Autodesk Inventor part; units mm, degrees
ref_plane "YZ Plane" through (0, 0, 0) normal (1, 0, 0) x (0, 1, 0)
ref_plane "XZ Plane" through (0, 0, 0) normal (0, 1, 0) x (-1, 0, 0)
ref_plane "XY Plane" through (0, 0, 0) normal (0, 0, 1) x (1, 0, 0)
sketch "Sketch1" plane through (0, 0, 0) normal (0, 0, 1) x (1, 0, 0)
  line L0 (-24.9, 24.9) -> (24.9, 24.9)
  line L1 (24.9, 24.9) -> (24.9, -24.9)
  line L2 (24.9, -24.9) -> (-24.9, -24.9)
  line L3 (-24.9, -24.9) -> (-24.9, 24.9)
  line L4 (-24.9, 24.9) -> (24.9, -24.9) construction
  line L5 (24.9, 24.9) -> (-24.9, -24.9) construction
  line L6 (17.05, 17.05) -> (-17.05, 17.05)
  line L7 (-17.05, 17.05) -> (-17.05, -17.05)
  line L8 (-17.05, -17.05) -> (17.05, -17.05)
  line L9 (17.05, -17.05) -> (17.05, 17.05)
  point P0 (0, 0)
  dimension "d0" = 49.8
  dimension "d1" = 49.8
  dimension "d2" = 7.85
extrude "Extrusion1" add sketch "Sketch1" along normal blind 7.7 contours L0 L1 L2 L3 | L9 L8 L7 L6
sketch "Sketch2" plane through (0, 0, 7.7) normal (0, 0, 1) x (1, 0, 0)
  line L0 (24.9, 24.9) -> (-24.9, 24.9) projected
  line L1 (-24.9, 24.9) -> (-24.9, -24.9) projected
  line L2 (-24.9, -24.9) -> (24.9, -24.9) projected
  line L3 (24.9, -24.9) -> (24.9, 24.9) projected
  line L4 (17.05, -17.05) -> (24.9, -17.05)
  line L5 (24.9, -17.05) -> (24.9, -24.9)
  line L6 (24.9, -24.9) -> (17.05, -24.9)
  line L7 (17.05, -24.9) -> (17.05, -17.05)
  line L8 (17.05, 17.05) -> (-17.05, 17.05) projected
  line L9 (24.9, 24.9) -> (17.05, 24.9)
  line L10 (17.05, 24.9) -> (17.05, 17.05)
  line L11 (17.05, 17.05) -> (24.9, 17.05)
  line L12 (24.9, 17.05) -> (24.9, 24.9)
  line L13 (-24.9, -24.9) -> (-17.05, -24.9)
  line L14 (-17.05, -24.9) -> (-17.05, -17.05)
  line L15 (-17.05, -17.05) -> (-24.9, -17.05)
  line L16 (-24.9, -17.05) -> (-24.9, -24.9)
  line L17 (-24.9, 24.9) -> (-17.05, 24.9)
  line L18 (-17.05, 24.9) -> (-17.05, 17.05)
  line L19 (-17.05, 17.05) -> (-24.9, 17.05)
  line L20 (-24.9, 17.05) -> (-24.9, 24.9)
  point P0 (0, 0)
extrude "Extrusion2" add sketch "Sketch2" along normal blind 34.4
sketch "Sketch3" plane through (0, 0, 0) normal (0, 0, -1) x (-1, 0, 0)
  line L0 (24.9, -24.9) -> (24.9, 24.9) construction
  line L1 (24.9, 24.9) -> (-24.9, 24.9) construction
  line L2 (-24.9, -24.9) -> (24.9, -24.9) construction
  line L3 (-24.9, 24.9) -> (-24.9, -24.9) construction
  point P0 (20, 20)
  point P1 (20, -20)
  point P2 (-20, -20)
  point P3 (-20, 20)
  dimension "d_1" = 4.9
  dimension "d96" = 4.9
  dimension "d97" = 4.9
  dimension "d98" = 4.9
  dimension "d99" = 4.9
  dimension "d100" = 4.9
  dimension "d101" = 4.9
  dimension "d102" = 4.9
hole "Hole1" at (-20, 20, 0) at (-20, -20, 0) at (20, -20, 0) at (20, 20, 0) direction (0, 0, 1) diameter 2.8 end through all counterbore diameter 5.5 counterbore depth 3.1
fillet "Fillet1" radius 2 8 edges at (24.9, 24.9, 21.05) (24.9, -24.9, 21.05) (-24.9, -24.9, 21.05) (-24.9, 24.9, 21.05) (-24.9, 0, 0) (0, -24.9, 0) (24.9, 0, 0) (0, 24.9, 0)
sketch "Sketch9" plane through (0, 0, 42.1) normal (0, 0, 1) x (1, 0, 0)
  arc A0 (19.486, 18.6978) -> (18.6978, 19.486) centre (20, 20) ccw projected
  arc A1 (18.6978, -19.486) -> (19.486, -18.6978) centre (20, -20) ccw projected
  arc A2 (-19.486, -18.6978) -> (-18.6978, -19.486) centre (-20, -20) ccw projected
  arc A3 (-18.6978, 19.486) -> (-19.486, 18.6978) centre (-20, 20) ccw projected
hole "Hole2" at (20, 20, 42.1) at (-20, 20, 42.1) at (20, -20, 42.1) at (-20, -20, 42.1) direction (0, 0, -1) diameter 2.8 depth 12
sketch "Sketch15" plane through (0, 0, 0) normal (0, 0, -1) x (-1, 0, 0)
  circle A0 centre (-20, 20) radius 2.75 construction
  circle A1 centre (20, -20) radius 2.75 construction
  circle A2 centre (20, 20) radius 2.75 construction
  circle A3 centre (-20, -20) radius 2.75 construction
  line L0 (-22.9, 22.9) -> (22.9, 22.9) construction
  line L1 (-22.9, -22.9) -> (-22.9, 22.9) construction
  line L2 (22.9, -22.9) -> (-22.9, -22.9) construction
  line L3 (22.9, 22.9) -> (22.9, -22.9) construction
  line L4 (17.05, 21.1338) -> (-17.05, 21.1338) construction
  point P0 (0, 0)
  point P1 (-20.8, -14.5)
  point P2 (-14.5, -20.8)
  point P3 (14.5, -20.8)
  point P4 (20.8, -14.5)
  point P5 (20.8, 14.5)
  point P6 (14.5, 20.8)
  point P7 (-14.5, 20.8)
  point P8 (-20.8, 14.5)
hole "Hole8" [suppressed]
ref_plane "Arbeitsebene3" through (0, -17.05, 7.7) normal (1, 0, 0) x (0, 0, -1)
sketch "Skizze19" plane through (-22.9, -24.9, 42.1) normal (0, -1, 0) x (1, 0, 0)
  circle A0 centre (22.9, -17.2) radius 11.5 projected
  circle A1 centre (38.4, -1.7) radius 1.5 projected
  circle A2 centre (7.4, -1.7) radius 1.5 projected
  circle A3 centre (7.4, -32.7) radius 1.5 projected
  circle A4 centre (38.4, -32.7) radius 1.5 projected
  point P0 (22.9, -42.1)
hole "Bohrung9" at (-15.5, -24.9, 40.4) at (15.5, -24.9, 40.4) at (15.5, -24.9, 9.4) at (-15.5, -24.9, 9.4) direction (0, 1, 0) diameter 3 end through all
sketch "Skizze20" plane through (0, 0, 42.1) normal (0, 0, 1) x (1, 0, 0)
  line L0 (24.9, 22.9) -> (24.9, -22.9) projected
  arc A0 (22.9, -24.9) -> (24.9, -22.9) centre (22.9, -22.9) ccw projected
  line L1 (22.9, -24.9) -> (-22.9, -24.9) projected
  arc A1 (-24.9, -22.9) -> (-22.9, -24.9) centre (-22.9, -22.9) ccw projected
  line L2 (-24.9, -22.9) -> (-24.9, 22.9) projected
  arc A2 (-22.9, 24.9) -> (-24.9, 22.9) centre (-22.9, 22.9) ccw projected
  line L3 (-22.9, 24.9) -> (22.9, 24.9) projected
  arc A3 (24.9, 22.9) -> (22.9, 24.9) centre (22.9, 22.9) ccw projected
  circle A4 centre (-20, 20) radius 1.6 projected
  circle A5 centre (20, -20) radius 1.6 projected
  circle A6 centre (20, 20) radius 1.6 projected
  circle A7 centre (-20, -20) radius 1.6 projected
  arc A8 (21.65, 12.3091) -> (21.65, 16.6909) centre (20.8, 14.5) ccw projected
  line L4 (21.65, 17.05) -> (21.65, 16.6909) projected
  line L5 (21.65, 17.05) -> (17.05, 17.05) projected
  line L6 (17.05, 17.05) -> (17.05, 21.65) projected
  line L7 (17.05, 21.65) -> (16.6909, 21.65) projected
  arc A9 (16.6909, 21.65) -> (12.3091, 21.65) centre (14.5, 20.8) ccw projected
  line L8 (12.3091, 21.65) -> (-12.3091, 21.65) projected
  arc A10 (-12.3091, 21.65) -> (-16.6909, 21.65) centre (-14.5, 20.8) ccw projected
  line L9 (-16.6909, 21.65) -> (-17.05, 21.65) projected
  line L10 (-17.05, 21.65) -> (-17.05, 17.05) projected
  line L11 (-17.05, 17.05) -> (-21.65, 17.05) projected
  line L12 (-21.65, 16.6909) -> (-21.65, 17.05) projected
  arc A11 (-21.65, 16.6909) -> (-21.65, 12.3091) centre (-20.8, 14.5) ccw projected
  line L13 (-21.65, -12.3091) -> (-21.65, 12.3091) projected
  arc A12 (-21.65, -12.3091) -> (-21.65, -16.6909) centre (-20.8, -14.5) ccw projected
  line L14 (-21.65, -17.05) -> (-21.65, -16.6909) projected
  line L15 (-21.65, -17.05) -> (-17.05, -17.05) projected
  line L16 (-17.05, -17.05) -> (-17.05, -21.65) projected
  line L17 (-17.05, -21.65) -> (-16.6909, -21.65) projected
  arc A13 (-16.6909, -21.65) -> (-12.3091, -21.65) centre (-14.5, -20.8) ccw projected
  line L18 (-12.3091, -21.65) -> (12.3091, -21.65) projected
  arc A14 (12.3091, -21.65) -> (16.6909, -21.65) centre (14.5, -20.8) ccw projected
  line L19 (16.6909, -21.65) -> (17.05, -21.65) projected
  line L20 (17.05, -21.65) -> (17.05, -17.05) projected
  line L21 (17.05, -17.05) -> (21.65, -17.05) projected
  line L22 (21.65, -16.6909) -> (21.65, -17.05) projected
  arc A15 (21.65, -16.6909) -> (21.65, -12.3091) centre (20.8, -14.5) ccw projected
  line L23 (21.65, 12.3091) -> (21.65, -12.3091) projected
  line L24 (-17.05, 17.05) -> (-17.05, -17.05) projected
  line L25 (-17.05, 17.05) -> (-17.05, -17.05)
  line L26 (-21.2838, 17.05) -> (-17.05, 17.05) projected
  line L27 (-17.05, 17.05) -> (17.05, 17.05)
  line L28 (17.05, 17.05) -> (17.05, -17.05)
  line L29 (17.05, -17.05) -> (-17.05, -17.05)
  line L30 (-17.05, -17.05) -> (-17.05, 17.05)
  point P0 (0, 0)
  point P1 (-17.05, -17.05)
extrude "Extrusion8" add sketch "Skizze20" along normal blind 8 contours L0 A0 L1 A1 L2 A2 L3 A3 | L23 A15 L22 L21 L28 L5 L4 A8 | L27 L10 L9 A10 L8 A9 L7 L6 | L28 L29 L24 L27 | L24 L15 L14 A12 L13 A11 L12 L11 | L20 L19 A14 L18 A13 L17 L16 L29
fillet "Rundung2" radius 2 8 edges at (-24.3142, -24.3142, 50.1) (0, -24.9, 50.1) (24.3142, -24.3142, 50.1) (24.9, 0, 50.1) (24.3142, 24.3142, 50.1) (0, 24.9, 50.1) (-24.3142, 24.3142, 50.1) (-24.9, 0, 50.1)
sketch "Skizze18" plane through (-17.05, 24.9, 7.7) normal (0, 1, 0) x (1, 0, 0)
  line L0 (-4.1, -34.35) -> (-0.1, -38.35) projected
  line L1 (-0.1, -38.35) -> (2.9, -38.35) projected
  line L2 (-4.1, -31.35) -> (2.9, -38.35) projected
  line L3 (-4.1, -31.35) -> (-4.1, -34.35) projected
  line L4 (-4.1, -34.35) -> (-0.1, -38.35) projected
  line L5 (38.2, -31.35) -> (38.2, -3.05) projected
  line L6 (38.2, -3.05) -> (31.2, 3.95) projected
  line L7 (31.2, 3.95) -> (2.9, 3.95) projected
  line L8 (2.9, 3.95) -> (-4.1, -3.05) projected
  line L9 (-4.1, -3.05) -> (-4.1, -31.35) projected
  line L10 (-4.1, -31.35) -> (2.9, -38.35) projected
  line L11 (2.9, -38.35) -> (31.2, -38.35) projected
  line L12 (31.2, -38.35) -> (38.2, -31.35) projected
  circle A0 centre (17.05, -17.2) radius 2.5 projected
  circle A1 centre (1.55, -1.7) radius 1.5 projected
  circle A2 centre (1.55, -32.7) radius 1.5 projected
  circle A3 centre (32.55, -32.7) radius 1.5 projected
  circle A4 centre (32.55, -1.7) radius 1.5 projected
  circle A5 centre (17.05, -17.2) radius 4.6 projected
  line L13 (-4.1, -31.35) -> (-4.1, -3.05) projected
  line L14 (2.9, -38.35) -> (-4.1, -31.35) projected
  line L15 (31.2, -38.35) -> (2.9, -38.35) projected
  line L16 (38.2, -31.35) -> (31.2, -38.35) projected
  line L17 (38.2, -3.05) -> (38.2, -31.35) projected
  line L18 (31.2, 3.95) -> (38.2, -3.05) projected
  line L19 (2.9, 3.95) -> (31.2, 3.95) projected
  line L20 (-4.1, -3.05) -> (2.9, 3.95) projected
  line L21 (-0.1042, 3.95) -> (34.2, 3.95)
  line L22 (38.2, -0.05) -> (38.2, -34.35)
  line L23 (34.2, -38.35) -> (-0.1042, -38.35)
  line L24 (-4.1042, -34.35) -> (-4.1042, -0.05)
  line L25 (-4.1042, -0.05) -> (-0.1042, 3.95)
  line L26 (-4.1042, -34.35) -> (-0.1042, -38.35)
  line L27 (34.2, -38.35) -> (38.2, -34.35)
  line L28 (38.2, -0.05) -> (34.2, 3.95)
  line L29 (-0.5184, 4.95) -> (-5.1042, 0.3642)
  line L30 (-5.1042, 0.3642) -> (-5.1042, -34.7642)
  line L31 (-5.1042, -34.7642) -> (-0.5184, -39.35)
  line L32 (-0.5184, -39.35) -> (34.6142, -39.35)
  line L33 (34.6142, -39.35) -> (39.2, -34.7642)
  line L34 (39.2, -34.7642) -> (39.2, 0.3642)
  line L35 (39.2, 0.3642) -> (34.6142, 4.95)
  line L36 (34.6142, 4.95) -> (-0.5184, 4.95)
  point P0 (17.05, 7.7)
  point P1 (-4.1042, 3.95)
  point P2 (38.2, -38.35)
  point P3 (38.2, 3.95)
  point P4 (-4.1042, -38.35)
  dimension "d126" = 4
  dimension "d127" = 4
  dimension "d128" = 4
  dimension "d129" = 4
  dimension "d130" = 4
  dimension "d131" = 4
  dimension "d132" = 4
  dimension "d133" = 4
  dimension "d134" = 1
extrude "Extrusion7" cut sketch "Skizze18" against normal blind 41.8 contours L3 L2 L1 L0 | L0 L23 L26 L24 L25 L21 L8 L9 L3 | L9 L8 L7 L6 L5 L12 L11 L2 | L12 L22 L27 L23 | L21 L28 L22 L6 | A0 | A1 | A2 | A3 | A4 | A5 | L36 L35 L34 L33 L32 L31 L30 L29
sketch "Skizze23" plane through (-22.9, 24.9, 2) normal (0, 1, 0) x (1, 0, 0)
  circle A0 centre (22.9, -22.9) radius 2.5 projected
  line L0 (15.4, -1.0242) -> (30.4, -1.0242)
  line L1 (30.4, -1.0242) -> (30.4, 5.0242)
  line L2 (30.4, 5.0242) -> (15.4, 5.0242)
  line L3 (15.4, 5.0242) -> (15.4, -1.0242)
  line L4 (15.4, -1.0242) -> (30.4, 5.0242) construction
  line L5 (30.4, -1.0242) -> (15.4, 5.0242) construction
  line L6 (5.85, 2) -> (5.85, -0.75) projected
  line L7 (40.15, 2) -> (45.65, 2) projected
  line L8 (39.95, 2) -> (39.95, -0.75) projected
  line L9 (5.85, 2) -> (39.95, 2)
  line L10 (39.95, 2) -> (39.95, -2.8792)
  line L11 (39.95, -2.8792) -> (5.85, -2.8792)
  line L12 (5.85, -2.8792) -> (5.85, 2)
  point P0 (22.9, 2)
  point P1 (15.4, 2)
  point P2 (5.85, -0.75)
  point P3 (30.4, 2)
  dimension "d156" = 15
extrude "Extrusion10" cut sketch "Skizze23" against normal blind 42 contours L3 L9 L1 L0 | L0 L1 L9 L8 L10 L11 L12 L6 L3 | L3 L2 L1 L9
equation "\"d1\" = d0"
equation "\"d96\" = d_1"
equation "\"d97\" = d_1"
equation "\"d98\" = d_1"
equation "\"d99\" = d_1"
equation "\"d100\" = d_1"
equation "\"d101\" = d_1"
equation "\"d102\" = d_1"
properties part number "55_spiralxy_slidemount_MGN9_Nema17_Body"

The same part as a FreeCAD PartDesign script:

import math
import FreeCAD as App
import Part
import Sketcher
from FreeCAD import Vector
Q = App.Units.Quantity


def edges_at(feature, points):
    """Names of the edges that pass closest to the given points."""
    edges = feature.Shape.Edges
    near = lambda p: min(range(len(edges)), key=lambda i: edges[i].distToShape(Part.Vertex(*p))[0])
    return sorted({f"Edge{near(p) + 1}" for p in points})


def add_polygon(sketch, points):
    """Adds a closed chain of lines whose ends are joined by coincident constraints."""
    first, n = sketch.GeometryCount, len(points)
    for a, b in zip(points, points[1:] + points[:1]):
        sketch.addGeometry(Part.LineSegment(App.Vector(*a, 0), App.Vector(*b, 0)), False)
    for i in range(n):
        sketch.addConstraint(Sketcher.Constraint("Coincident", first + i, 2, first + (i + 1) % n, 1))

doc = App.newDocument("Part")
body = doc.addObject("PartDesign::Body", "Body")

sketch1 = body.newObject("Sketcher::SketchObject", "Sketch")
sketch1.AttachmentSupport = (doc.getObject("XY_Plane"), [""])
sketch1.MapMode = "FlatFace"
add_polygon(sketch1, [(25, 25), (-25, 25), (-25, -25), (25, -25)])
sketch1.addConstraint([
    Sketcher.Constraint("Horizontal", 0),
    Sketcher.Constraint("Vertical", 1),
    Sketcher.Constraint("Horizontal", 2),
    Sketcher.Constraint("Vertical", 3),
    Sketcher.Constraint("Symmetric", 0, 2, 2, 2, -1, 1),
    Sketcher.Constraint("Equal", 2, 1),
    Sketcher.Constraint("DistanceX", 0, 2, 0, 1, Q("49.8 mm")),
])
pad1 = body.newObject("PartDesign::Pad", "Pad")
pad1.Profile = sketch1
pad1.Length = 7.7

sketch2 = body.newObject("Sketcher::SketchObject", "Sketch001")
sketch2.AttachmentSupport = (doc.getObject("XY_Plane"), [""])
sketch2.MapMode = "FlatFace"
sketch2.AttachmentOffset = App.Placement(Vector(0, 0, 7.7), App.Rotation())
add_polygon(sketch2, [(25, 25), (-25, 25), (-25, -25), (25, -25)])
sketch2.addConstraint([
    Sketcher.Constraint("Horizontal", 0),
    Sketcher.Constraint("Vertical", 1),
    Sketcher.Constraint("Horizontal", 2),
    Sketcher.Constraint("Vertical", 3),
    Sketcher.Constraint("Symmetric", 0, 2, 2, 2, -1, 1),
    Sketcher.Constraint("Equal", 2, 1),
    Sketcher.Constraint("DistanceX", 0, 2, 0, 1, Q("49.8 mm")),
])
pad2 = body.newObject("PartDesign::Pad", "Pad001")
pad2.Profile = sketch2
pad2.Length = 34.4

sketch3 = body.newObject("Sketcher::SketchObject", "Sketch002")
sketch3.AttachmentSupport = (doc.getObject("XY_Plane"), [""])
sketch3.MapMode = "FlatFace"
sketch3.addGeometry([
    Part.Circle(Vector(-20, 20, 0), Vector(0, 0, 1), 1.4),
    Part.Circle(Vector(-20, -20, 0), Vector(0, 0, 1), 1.4),
    Part.Circle(Vector(20, -20, 0), Vector(0, 0, 1), 1.4),
    Part.Circle(Vector(20, 20, 0), Vector(0, 0, 1), 1.4),
], False)
sketch3.addConstraint([
    Sketcher.Constraint("Equal", 0, 1),
    Sketcher.Constraint("Equal", 1, 2),
    Sketcher.Constraint("Equal", 2, 3),
    Sketcher.Constraint("Symmetric", 0, 3, 2, 3, -1, 1),
    Sketcher.Constraint("Symmetric", 1, 3, 3, 3, -1, 1),
    Sketcher.Constraint("Symmetric", 1, 3, 2, 3, -2),
    Sketcher.Constraint("Diameter", 0, Q("2.8 mm")),
    Sketcher.Constraint("DistanceX", 0, 3, -1, 1, Q("20 mm")),
    Sketcher.Constraint("DistanceY", -1, 1, 0, 3, Q("20 mm")),
])
doc.recompute()
hole = body.newObject("PartDesign::Hole", "Hole")
hole.Profile = sketch3
hole.ThreadType = "None"
hole.Diameter = 2.8
hole.DepthType = "ThroughAll"
hole.HoleCutType = "Counterbore"
hole.HoleCutDiameter = 5.5
hole.HoleCutDepth = 3.1
hole.Reversed = True
doc.recompute()

fillet = body.newObject("PartDesign::Fillet", "Fillet")
fillet.Base = (hole, edges_at(hole, [
    (24.9, 24.9, 21.05),
    (24.9, -24.9, 21.05),
    (-24.9, -24.9, 21.05),
    (-24.9, 24.9, 21.05),
    (-24.9, 0, 0),
    (0, -24.9, 0),
    (24.9, 0, 0),
    (0, 24.9, 0),
]))
fillet.Radius = 2

sketch4 = body.newObject("Sketcher::SketchObject", "Sketch003")
sketch4.AttachmentSupport = (doc.getObject("XY_Plane"), [""])
sketch4.MapMode = "FlatFace"
sketch4.AttachmentOffset = App.Placement(Vector(0, 0, 42.1), App.Rotation())
sketch4.addGeometry([
    Part.Circle(Vector(20, 20, 0), Vector(0, 0, 1), 1.4),
    Part.Circle(Vector(-20, 20, 0), Vector(0, 0, 1), 1.4),
    Part.Circle(Vector(20, -20, 0), Vector(0, 0, 1), 1.4),
    Part.Circle(Vector(-20, -20, 0), Vector(0, 0, 1), 1.4),
], False)
sketch4.addConstraint([
    Sketcher.Constraint("Equal", 0, 1),
    Sketcher.Constraint("Equal", 1, 2),
    Sketcher.Constraint("Equal", 2, 3),
    Sketcher.Constraint("Symmetric", 1, 3, 2, 3, -1, 1),
    Sketcher.Constraint("Symmetric", 0, 3, 3, 3, -1, 1),
    Sketcher.Constraint("Symmetric", 0, 3, 1, 3, -2),
    Sketcher.Constraint("Diameter", 0, Q("2.8 mm")),
    Sketcher.Constraint("DistanceX", -1, 1, 0, 3, Q("20 mm")),
    Sketcher.Constraint("DistanceY", -1, 1, 0, 3, Q("20 mm")),
])
doc.recompute()
hole2 = body.newObject("PartDesign::Hole", "Hole001")
hole2.Profile = sketch4
hole2.ThreadType = "None"
hole2.Diameter = 2.8
hole2.DepthType = "Dimension"
hole2.Depth = 12
hole2.DrillPoint = "Flat"

sketch5 = body.newObject("Sketcher::SketchObject", "Sketch004")
sketch5.AttachmentSupport = (doc.getObject("XZ_Plane"), [""])
sketch5.MapMode = "FlatFace"
sketch5.AttachmentOffset = App.Placement(Vector(0, 0, 24.9), App.Rotation())
sketch5.addGeometry([
    Part.Circle(Vector(-15.5, 40.4, 0), Vector(0, 0, 1), 1.5),
    Part.Circle(Vector(15.5, 40.4, 0), Vector(0, 0, 1), 1.5),
    Part.Circle(Vector(15.5, 9.4, 0), Vector(0, 0, 1), 1.5),
    Part.Circle(Vector(-15.5, 9.4, 0), Vector(0, 0, 1), 1.5),
], False)
sketch5.addConstraint([
    Sketcher.Constraint("Equal", 0, 1),
    Sketcher.Constraint("Equal", 1, 2),
    Sketcher.Constraint("Equal", 2, 3),
    Sketcher.Constraint("Symmetric", 0, 3, 1, 3, -2),
    Sketcher.Constraint("Symmetric", 2, 3, 3, 3, -2),
    Sketcher.Constraint("Vertical", 1, 3, 2, 3),
    Sketcher.Constraint("Diameter", 0, Q("3 mm")),
    Sketcher.Constraint("DistanceX", 0, 3, 1, 3, Q("31 mm")),
    Sketcher.Constraint("DistanceY", 2, 3, 1, 3, Q("31 mm")),
    Sketcher.Constraint("DistanceY", -1, 1, 0, 3, Q("40.4 mm")),
])
doc.recompute()
hole3 = body.newObject("PartDesign::Hole", "Hole002")
hole3.Profile = sketch5
hole3.ThreadType = "None"
hole3.Diameter = 3
hole3.DepthType = "ThroughAll"

sketch6 = body.newObject("Sketcher::SketchObject", "Sketch005")
sketch6.AttachmentSupport = (doc.getObject("XY_Plane"), [""])
sketch6.MapMode = "FlatFace"
sketch6.AttachmentOffset = App.Placement(Vector(0, 0, 42.1), App.Rotation())
sketch6.addGeometry([
    Part.LineSegment(Vector(24.9, -22.9, 0), Vector(24.9, 22.9, 0)),
    Part.ArcOfCircle(Part.Circle(Vector(22.9, 22.9, 0), Vector(0, 0, 1), 2), math.radians(0), math.radians(90)),
    Part.LineSegment(Vector(22.9, 24.9, 0), Vector(-22.9, 24.9, 0)),
    Part.ArcOfCircle(Part.Circle(Vector(-22.9, 22.9, 0), Vector(0, 0, 1), 2), math.radians(90), math.radians(180)),
    Part.LineSegment(Vector(-24.9, 22.9, 0), Vector(-24.9, -22.9, 0)),
    Part.ArcOfCircle(Part.Circle(Vector(-22.9, -22.9, 0), Vector(0, 0, 1), 2), math.radians(180), math.radians(270)),
    Part.LineSegment(Vector(-22.9, -24.9, 0), Vector(22.9, -24.9, 0)),
    Part.ArcOfCircle(Part.Circle(Vector(22.9, -22.9, 0), Vector(0, 0, 1), 2), math.radians(-90), math.radians(0)),
    Part.Circle(Vector(-20, -20, 0), Vector(0, 0, 1), 1.6),
    Part.Circle(Vector(20, -20, 0), Vector(0, 0, 1), 1.6),
    Part.Circle(Vector(-20, 20, 0), Vector(0, 0, 1), 1.6),
    Part.Circle(Vector(20, 20, 0), Vector(0, 0, 1), 1.6),
], False)
sketch6.addConstraint([
    Sketcher.Constraint("Tangent", 0, 2, 1, 1),
    Sketcher.Constraint("Tangent", 1, 2, 2, 1),
    Sketcher.Constraint("Tangent", 2, 2, 3, 1),
    Sketcher.Constraint("Tangent", 3, 2, 4, 1),
    Sketcher.Constraint("Tangent", 4, 2, 5, 1),
    Sketcher.Constraint("Tangent", 5, 2, 6, 1),
    Sketcher.Constraint("Tangent", 6, 2, 7, 1),
    Sketcher.Constraint("Tangent", 7, 2, 0, 1),
    Sketcher.Constraint("Vertical", 0),
    Sketcher.Constraint("Horizontal", 2),
    Sketcher.Constraint("Vertical", 4),
    Sketcher.Constraint("Horizontal", 6),
    Sketcher.Constraint("Equal", 1, 3),
    Sketcher.Constraint("Equal", 3, 5),
    Sketcher.Constraint("Equal", 5, 7),
    Sketcher.Constraint("Equal", 8, 9),
    Sketcher.Constraint("Equal", 9, 10),
    Sketcher.Constraint("Equal", 10, 11),
    Sketcher.Constraint("Symmetric", 1, 3, 5, 3, -1, 1),
    Sketcher.Constraint("Symmetric", 9, 3, 10, 3, -1, 1),
    Sketcher.Constraint("Symmetric", 8, 3, 11, 3, -1, 1),
    Sketcher.Constraint("Symmetric", 8, 3, 9, 3, -2),
    Sketcher.Constraint("Equal", 6, 0),
    Sketcher.Constraint("Radius", 1, Q("2 mm")),
    Sketcher.Constraint("Diameter", 8, Q("3.2 mm")),
    Sketcher.Constraint("DistanceX", 2, 2, 2, 1, Q("45.8 mm")),
    Sketcher.Constraint("DistanceX", 8, 3, -1, 1, Q("20 mm")),
    Sketcher.Constraint("DistanceY", 8, 3, -1, 1, Q("20 mm")),
])
pad3 = body.newObject("PartDesign::Pad", "Pad002")
pad3.Profile = sketch6
pad3.Length = 8
doc.recompute()

fillet2 = body.newObject("PartDesign::Fillet", "Fillet001")
fillet2.Base = (pad3, edges_at(pad3, [
    (-24.314, -24.314, 50.1),
    (0, -24.9, 50.1),
    (24.314, -24.314, 50.1),
    (24.9, 0, 50.1),
    (24.314, 24.314, 50.1),
    (0, 24.9, 50.1),
    (-24.314, 24.314, 50.1),
    (-24.9, 0, 50.1),
]))
fillet2.Radius = 2

sketch7 = body.newObject("Sketcher::SketchObject", "Sketch006")
sketch7.AttachmentSupport = (doc.getObject("XZ_Plane"), [""])
sketch7.MapMode = "FlatFace"
sketch7.AttachmentOffset = App.Placement(Vector(0, 0, -24.9), App.Rotation())
add_polygon(sketch7, [(18, 3), (-18, 3), (-22, 7), (-22, 42), (-18, 47), (18, 47), (22, 42), (22, 7)])
sketch7.addConstraint([
    Sketcher.Constraint("Horizontal", 0),
    Sketcher.Constraint("Vertical", 2),
    Sketcher.Constraint("Horizontal", 4),
    Sketcher.Constraint("Vertical", 6),
    Sketcher.Constraint("Perpendicular", 1, 3),
    Sketcher.Constraint("Perpendicular", 3, 5),
    Sketcher.Constraint("Perpendicular", 5, 7),
    Sketcher.Constraint("Horizontal", 2, 2, 5, 2),
    Sketcher.Constraint("Horizontal", 1, 2, 6, 2),
    Sketcher.Constraint("Vertical", 0, 2, 3, 2),
    Sketcher.Constraint("Vertical", 4, 2, 7, 2),
    Sketcher.Constraint("DistanceY", 0, 2, 3, 2, Q("44.3 mm")),
    Sketcher.Constraint("DistanceY", -1, 1, 0, 2, Q("2.75 mm")),
    Sketcher.Constraint("DistanceX", -1, 1, 5, 2, Q("22.15 mm")),
    Sketcher.Constraint("DistanceX", 0, 2, 0, 1, Q("35.1326 mm")),
    Sketcher.Constraint("DistanceY", 2, 1, 2, 2, Q("35.1284 mm")),
])
pocket1 = body.newObject("PartDesign::Pocket", "Pocket")
pocket1.Profile = sketch7
pocket1.Length = 41.8
pocket1.Reversed = True

sketch8 = body.newObject("Sketcher::SketchObject", "Sketch007")
sketch8.AttachmentSupport = (doc.getObject("XZ_Plane"), [""])
sketch8.MapMode = "FlatFace"
sketch8.AttachmentOffset = App.Placement(Vector(0, 0, -24.9), App.Rotation())
add_polygon(sketch8, [(-17.1, 0), (-17.1, 4.9), (17.1, 4.9), (17.1, 0), (7.5, 0), (7.5, -3), (-7.5, -3), (-7.5, 0)])
sketch8.addConstraint([
    Sketcher.Constraint("Vertical", 0),
    Sketcher.Constraint("Horizontal", 1),
    Sketcher.Constraint("Vertical", 2),
    Sketcher.Constraint("Horizontal", 3),
    Sketcher.Constraint("Vertical", 4),
    Sketcher.Constraint("Horizontal", 5),
    Sketcher.Constraint("Vertical", 6),
    Sketcher.Constraint("Horizontal", 7),
    Sketcher.Constraint("Symmetric", 3, 2, 6, 2, -1, 1),
    Sketcher.Constraint("Symmetric", 2, 2, 7, 2, -2),
    Sketcher.Constraint("DistanceX", 5, 2, 5, 1, Q("15 mm")),
    Sketcher.Constraint("DistanceX", 1, 1, 1, 2, Q("34.1 mm")),
    Sketcher.Constraint("DistanceY", 0, 1, 0, 2, Q("4.8792 mm")),
    Sketcher.Constraint("DistanceY", 4, 2, 4, 1, Q("3.0242 mm")),
])
pocket2 = body.newObject("PartDesign::Pocket", "Pocket001")
pocket2.Profile = sketch8
pocket2.Length = 42
pocket2.Reversed = True

doc.recompute()
